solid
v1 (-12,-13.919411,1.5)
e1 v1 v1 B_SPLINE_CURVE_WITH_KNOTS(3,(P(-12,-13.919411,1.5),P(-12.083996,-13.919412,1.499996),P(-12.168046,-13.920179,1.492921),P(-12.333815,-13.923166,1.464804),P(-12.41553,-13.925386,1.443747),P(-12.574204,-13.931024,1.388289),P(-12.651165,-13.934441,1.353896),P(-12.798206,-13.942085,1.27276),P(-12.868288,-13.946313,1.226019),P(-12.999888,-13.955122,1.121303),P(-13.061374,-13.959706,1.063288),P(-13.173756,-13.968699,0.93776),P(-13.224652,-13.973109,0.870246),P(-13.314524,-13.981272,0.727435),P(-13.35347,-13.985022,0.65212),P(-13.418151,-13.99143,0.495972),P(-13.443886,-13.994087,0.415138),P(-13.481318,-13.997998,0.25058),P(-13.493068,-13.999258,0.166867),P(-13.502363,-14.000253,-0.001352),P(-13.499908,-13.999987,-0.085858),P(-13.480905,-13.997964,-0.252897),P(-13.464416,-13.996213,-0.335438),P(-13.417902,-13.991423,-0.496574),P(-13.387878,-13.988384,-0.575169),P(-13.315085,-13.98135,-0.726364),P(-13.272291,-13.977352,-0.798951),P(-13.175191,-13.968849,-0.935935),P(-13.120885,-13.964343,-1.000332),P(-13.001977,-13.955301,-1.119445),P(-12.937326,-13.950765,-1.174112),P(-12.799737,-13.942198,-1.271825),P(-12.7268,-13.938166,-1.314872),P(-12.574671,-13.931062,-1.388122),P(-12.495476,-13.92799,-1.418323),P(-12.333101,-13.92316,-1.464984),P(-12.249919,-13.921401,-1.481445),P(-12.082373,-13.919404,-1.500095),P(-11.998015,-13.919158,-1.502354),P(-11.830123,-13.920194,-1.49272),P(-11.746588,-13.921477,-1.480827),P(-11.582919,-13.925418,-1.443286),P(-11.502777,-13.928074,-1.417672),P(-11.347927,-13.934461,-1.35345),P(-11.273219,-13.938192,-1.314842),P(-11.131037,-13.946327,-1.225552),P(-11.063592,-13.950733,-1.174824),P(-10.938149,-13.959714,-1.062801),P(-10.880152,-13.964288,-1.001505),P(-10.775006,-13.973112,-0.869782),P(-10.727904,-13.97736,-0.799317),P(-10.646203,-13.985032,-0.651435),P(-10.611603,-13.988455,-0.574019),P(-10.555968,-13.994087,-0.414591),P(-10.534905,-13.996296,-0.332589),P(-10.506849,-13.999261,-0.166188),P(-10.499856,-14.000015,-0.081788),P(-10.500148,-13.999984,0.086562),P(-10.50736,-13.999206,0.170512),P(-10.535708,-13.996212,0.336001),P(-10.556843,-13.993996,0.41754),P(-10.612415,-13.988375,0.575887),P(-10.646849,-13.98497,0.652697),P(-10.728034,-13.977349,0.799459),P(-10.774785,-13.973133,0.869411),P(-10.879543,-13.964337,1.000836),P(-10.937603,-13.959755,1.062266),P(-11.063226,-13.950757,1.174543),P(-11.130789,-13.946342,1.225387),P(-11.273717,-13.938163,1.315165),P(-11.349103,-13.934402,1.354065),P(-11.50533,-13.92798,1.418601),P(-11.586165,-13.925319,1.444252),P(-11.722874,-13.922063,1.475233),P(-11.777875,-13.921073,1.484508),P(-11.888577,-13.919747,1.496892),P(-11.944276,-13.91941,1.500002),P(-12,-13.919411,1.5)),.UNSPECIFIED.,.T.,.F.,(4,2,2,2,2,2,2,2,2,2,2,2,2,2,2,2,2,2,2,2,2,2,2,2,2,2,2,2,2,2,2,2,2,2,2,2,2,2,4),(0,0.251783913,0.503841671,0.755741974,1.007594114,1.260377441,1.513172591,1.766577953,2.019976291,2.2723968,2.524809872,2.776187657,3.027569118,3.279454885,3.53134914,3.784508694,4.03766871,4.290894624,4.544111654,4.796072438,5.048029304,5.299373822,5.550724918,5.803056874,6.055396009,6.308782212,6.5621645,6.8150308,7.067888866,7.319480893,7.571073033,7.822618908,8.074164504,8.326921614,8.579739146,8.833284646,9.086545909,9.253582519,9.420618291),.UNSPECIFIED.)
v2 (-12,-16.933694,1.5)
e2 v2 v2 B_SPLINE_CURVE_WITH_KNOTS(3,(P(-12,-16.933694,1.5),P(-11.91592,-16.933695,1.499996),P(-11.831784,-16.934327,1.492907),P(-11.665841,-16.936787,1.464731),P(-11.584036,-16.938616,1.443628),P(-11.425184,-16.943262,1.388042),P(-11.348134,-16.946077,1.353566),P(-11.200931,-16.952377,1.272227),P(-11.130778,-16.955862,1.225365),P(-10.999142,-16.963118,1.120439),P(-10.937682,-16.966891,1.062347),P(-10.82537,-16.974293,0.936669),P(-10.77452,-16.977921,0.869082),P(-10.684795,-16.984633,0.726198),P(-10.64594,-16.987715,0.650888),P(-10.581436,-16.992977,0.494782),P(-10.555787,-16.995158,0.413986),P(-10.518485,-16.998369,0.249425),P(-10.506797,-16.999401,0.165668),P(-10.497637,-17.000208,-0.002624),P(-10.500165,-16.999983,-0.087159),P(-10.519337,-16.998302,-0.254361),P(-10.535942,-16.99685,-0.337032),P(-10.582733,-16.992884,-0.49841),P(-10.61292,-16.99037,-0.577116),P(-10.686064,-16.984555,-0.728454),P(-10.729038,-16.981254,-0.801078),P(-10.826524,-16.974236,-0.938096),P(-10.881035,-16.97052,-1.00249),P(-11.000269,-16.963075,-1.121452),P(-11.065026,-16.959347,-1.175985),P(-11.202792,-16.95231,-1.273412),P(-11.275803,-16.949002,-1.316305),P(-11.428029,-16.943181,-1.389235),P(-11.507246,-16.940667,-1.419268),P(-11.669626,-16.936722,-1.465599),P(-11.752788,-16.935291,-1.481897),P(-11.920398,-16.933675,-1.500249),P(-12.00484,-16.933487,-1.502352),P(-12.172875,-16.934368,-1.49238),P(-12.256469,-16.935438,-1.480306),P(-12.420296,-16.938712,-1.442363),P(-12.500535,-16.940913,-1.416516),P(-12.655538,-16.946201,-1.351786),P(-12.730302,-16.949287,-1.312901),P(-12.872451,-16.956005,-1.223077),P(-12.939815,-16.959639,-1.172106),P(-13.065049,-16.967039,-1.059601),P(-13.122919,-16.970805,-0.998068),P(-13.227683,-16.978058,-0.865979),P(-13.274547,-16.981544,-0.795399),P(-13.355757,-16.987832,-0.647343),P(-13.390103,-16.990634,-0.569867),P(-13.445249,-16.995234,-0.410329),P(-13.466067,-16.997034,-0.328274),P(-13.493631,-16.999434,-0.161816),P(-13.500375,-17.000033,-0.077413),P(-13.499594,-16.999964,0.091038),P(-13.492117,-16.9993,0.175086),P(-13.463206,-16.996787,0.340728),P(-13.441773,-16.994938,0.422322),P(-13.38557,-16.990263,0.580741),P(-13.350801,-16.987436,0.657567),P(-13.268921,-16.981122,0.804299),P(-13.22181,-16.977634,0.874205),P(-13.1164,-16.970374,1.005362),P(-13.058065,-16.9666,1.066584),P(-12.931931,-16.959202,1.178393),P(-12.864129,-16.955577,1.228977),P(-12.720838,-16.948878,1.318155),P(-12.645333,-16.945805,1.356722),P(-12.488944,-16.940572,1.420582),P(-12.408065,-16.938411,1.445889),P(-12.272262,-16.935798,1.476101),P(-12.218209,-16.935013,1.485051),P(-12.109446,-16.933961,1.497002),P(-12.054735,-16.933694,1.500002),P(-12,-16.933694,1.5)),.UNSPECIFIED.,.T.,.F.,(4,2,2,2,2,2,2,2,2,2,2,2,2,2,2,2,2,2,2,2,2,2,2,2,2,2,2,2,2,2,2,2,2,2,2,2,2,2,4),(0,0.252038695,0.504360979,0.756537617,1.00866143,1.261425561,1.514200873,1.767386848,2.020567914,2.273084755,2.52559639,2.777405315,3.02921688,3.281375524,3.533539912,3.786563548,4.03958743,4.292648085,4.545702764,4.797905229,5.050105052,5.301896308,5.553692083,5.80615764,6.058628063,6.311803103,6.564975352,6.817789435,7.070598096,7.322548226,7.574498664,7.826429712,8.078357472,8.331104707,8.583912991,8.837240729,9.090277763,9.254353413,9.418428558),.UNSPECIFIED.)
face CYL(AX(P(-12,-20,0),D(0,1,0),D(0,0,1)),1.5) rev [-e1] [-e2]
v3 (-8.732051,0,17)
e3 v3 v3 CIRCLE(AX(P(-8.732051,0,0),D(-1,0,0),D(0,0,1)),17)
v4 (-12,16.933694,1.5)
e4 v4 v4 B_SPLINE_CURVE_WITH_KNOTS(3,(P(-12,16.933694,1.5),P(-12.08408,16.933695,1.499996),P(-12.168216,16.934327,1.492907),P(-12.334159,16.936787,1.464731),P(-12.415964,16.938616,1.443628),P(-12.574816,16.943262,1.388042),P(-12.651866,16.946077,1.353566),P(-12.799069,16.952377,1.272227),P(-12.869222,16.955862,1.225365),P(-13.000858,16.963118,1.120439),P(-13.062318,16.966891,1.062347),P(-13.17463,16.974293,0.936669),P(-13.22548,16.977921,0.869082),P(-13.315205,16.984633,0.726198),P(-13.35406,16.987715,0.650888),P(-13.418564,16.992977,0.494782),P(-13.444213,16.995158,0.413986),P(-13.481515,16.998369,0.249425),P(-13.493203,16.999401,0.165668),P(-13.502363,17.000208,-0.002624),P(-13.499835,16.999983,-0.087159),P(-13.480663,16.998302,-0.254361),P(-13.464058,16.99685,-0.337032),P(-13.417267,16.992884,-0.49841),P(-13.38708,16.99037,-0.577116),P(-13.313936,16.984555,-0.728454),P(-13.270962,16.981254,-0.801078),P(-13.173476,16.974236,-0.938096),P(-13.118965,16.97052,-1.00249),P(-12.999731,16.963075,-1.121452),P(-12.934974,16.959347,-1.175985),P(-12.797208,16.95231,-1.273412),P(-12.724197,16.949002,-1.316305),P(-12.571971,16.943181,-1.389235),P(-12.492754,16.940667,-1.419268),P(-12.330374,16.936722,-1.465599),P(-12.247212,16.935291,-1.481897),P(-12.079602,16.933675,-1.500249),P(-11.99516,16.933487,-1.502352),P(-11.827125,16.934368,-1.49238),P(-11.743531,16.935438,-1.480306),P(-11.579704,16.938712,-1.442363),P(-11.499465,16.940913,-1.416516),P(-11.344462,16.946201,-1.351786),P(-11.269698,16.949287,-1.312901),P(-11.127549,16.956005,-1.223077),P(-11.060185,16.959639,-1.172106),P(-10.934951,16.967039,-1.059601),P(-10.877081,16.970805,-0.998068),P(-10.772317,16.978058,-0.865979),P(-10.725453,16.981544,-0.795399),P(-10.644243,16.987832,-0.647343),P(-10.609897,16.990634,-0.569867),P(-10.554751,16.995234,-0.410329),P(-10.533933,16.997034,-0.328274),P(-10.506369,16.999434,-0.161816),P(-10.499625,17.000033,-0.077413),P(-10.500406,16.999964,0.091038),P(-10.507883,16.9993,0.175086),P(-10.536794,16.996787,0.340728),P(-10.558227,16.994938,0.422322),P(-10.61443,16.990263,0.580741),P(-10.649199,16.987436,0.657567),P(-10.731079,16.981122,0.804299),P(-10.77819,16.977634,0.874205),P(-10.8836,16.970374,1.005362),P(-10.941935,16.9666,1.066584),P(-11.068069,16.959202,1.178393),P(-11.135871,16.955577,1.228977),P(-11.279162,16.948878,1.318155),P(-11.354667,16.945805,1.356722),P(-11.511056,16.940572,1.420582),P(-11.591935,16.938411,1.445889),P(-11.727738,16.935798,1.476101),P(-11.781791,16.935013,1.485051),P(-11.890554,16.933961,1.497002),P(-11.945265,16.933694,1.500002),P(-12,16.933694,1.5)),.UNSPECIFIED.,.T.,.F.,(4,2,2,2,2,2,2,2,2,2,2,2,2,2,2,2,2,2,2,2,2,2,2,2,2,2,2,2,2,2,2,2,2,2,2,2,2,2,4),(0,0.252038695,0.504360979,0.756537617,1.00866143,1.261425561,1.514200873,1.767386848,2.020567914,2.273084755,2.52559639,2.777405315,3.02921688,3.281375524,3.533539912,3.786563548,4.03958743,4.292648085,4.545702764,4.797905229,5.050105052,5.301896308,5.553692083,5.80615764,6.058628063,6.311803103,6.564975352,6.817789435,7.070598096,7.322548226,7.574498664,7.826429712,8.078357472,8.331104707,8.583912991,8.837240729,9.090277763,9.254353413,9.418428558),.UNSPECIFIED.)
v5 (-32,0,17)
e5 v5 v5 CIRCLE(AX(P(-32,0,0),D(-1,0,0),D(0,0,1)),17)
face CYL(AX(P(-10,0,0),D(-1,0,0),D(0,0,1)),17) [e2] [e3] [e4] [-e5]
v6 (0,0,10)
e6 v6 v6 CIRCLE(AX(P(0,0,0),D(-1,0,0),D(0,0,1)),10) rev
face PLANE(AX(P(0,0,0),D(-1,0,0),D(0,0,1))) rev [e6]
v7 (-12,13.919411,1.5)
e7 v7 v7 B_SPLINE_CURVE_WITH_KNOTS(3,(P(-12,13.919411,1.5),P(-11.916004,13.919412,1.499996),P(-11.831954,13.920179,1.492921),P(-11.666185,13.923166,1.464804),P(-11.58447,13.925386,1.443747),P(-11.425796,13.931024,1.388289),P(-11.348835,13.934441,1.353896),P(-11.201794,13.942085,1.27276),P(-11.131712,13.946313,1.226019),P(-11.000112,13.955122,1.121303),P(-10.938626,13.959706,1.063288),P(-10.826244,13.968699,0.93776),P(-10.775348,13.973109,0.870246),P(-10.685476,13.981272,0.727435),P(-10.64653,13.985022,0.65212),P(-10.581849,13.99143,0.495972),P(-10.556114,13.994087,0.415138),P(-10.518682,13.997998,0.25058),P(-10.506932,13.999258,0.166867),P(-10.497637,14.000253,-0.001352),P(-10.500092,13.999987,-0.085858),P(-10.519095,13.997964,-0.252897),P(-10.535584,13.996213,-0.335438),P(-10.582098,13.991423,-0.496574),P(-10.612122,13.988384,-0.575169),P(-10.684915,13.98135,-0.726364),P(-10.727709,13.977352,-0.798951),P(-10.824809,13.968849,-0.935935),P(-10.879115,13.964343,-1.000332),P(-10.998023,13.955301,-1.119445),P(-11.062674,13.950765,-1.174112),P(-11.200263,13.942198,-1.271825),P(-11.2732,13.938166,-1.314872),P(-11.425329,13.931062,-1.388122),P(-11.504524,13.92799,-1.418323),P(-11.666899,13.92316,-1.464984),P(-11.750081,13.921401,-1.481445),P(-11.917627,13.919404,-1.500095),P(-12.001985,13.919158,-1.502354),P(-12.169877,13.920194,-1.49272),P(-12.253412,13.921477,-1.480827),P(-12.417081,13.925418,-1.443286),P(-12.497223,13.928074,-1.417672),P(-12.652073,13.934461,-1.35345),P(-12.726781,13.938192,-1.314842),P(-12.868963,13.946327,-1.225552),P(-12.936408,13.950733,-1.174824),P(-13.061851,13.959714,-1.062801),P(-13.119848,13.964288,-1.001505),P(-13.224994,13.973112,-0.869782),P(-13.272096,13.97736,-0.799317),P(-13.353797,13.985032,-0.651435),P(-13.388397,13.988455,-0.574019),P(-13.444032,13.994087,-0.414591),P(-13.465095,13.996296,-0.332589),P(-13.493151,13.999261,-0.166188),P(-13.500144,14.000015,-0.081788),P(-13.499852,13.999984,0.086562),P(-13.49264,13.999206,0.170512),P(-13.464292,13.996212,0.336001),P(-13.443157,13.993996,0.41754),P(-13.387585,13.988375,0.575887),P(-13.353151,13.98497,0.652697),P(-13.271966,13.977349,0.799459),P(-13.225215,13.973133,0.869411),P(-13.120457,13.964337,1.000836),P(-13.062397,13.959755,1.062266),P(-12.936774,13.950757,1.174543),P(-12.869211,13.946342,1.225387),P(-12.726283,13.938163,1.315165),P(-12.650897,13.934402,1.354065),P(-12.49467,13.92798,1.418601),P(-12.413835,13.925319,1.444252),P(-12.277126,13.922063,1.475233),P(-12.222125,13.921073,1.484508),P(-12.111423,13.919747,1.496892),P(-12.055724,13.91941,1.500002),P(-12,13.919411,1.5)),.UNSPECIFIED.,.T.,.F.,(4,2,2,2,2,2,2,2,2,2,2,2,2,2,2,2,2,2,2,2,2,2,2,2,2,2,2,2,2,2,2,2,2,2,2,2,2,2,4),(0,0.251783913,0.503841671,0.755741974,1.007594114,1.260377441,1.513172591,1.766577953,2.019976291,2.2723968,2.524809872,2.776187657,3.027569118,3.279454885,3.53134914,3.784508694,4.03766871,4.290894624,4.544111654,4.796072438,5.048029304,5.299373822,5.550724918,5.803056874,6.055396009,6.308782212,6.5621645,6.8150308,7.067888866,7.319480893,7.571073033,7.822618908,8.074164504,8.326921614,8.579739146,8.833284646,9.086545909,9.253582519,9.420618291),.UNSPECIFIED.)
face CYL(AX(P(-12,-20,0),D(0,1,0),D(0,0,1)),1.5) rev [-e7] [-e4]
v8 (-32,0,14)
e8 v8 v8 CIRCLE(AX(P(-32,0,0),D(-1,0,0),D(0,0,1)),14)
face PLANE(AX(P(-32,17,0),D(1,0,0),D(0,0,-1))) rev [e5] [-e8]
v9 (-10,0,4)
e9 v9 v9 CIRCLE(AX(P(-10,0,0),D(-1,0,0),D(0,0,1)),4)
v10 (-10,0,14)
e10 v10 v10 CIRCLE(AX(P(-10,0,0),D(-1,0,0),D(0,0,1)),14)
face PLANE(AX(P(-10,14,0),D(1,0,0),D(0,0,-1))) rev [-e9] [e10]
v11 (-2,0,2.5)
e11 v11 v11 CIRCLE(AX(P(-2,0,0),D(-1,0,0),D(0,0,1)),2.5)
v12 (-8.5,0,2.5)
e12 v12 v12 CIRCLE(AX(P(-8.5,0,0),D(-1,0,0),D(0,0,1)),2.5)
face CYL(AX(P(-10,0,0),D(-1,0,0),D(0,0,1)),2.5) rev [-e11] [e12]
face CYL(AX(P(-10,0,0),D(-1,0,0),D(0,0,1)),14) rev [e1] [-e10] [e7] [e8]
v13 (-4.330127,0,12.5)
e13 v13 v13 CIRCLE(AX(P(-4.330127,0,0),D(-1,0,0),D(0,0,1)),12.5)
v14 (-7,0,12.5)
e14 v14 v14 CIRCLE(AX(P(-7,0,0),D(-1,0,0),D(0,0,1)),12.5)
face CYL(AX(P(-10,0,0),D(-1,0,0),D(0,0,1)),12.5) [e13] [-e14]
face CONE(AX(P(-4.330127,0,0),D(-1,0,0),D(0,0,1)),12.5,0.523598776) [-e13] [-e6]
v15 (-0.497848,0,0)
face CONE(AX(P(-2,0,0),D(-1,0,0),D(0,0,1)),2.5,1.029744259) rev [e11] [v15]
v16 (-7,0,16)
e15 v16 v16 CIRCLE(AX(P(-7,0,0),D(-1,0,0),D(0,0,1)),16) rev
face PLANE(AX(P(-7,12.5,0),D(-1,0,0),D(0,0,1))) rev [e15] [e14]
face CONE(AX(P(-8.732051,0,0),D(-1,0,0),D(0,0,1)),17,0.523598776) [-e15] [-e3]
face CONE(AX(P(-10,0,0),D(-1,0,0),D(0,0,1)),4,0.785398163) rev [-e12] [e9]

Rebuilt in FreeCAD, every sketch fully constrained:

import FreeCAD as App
import Part
import Sketcher
from FreeCAD import Vector
Q = App.Units.Quantity


def edges_at(feature, points):
    """Names of the edges that pass closest to the given points."""
    edges = feature.Shape.Edges
    near = lambda p: min(range(len(edges)), key=lambda i: edges[i].distToShape(Part.Vertex(*p))[0])
    return sorted({f"Edge{near(p) + 1}" for p in points})

doc = App.newDocument("Part")
body = doc.addObject("PartDesign::Body", "Body")

# Sketch on XY plane
sketch1 = body.newObject("Sketcher::SketchObject", "Sketch")
sketch1.AttachmentSupport = (doc.getObject("XY_Plane"), [""])
sketch1.MapMode = "FlatFace"
sketch1.addGeometry([
    Part.LineSegment(Vector(0, 0, 0), Vector(0, 12.5, 0)),  # 0
    Part.LineSegment(Vector(0, 12.5, 0), Vector(-7, 12.5, 0)),  # 1
    Part.LineSegment(Vector(-7, 12.5, 0), Vector(-7, 17, 0)),  # 2
    Part.LineSegment(Vector(-7, 17, 0), Vector(-32, 17, 0)),  # 3
    Part.LineSegment(Vector(-32, 17, 0), Vector(-32, 14, 0)),  # 4
    Part.LineSegment(Vector(-32, 14, 0), Vector(-10, 14, 0)),  # 5
    Part.LineSegment(Vector(-10, 14, 0), Vector(-10, 0, 0)),  # 6
    Part.LineSegment(Vector(-10, 0, 0), Vector(0, 0, 0)),  # 7
], False)
sketch1.addConstraint([
    Sketcher.Constraint("Coincident", 0, 2, 1, 1),
    Sketcher.Constraint("Coincident", 1, 2, 2, 1),
    Sketcher.Constraint("Coincident", 2, 2, 3, 1),
    Sketcher.Constraint("Coincident", 3, 2, 4, 1),
    Sketcher.Constraint("Coincident", 4, 2, 5, 1),
    Sketcher.Constraint("Coincident", 5, 2, 6, 1),
    Sketcher.Constraint("Coincident", 6, 2, 7, 1),
    Sketcher.Constraint("Coincident", 7, 2, 0, 1),
    Sketcher.Constraint("Vertical", 0),
    Sketcher.Constraint("Horizontal", 1),
    Sketcher.Constraint("Vertical", 2),
    Sketcher.Constraint("Horizontal", 3),
    Sketcher.Constraint("Vertical", 4),
    Sketcher.Constraint("Horizontal", 5),
    Sketcher.Constraint("Vertical", 6),
    Sketcher.Constraint("Horizontal", 7),
    Sketcher.Constraint("Coincident", 7, 2, -1, 1),
    Sketcher.Constraint("DistanceX", 1, 2, 1, 1, Q("7 mm")),
    Sketcher.Constraint("DistanceX", 3, 2, 3, 1, Q("25 mm")),
    Sketcher.Constraint("DistanceX", 5, 1, 5, 2, Q("22 mm")),
    Sketcher.Constraint("DistanceY", 4, 2, 4, 1, Q("3 mm")),
    Sketcher.Constraint("DistanceY", 6, 2, 6, 1, Q("14 mm")),
    Sketcher.Constraint("DistanceY", 0, 1, 0, 2, Q("12.5 mm")),
])
revolution = body.newObject("PartDesign::Revolution", "Revolution")
revolution.Profile = sketch1
revolution.ReferenceAxis = (sketch1, ["H_Axis"])
revolution.Angle = 360
doc.recompute()

chamfer = body.newObject("PartDesign::Chamfer", "Chamfer")
chamfer.Base = (revolution, edges_at(revolution, [(0, 0, -12.5)]))
chamfer.ChamferType = "Two distances"
chamfer.Size = 2.5
chamfer.Size2 = 4.330127
doc.recompute()

chamfer2 = body.newObject("PartDesign::Chamfer", "Chamfer001")
chamfer2.Base = (chamfer, edges_at(chamfer, [(-7, 0, -17)]))
chamfer2.ChamferType = "Two distances"
chamfer2.Size = 1
chamfer2.Size2 = 1.732051

# Sketch on YZ plane
sketch2 = body.newObject("Sketcher::SketchObject", "Sketch001")
sketch2.AttachmentSupport = (doc.getObject("YZ_Plane"), [""])
sketch2.MapMode = "FlatFace"
sketch2.AttachmentOffset = App.Placement(Vector(0, 0, -10), App.Rotation())
sketch2.addGeometry(Part.Circle(Vector(0, 0, 0), Vector(0, 0, 1), 2.5), False)
sketch2.addConstraint([
    Sketcher.Constraint("Coincident", 0, 3, -1, 1),
    Sketcher.Constraint("Diameter", 0, Q("5 mm")),
])
doc.recompute()
hole = body.newObject("PartDesign::Hole", "Hole")
hole.Profile = sketch2
hole.ThreadType = "None"
hole.Diameter = 5
hole.DepthType = "Dimension"
hole.Depth = 8
hole.DrillPoint = "Angled"
hole.DrillPointAngle = 118
hole.HoleCutType = "Countersink"
hole.HoleCutDiameter = 8
hole.HoleCutCountersinkAngle = 90
hole.Reversed = True

# Sketch on XZ plane
sketch3 = body.newObject("Sketcher::SketchObject", "Sketch002")
sketch3.AttachmentSupport = (doc.getObject("XZ_Plane"), [""])
sketch3.MapMode = "FlatFace"
sketch3.addGeometry(Part.Circle(Vector(-12, 0, 0), Vector(0, 0, 1), 1.5), False)
sketch3.addConstraint([
    Sketcher.Constraint("PointOnObject", 0, 3, -1),
    Sketcher.Constraint("Diameter", 0, Q("3 mm")),
    Sketcher.Constraint("DistanceX", 0, 3, -1, 1, Q("12 mm")),
])
pocket1 = body.newObject("PartDesign::Pocket", "Pocket")
pocket1.Profile = sketch3
pocket1.Length = 40
pocket1.Midplane = True

doc.recompute()
